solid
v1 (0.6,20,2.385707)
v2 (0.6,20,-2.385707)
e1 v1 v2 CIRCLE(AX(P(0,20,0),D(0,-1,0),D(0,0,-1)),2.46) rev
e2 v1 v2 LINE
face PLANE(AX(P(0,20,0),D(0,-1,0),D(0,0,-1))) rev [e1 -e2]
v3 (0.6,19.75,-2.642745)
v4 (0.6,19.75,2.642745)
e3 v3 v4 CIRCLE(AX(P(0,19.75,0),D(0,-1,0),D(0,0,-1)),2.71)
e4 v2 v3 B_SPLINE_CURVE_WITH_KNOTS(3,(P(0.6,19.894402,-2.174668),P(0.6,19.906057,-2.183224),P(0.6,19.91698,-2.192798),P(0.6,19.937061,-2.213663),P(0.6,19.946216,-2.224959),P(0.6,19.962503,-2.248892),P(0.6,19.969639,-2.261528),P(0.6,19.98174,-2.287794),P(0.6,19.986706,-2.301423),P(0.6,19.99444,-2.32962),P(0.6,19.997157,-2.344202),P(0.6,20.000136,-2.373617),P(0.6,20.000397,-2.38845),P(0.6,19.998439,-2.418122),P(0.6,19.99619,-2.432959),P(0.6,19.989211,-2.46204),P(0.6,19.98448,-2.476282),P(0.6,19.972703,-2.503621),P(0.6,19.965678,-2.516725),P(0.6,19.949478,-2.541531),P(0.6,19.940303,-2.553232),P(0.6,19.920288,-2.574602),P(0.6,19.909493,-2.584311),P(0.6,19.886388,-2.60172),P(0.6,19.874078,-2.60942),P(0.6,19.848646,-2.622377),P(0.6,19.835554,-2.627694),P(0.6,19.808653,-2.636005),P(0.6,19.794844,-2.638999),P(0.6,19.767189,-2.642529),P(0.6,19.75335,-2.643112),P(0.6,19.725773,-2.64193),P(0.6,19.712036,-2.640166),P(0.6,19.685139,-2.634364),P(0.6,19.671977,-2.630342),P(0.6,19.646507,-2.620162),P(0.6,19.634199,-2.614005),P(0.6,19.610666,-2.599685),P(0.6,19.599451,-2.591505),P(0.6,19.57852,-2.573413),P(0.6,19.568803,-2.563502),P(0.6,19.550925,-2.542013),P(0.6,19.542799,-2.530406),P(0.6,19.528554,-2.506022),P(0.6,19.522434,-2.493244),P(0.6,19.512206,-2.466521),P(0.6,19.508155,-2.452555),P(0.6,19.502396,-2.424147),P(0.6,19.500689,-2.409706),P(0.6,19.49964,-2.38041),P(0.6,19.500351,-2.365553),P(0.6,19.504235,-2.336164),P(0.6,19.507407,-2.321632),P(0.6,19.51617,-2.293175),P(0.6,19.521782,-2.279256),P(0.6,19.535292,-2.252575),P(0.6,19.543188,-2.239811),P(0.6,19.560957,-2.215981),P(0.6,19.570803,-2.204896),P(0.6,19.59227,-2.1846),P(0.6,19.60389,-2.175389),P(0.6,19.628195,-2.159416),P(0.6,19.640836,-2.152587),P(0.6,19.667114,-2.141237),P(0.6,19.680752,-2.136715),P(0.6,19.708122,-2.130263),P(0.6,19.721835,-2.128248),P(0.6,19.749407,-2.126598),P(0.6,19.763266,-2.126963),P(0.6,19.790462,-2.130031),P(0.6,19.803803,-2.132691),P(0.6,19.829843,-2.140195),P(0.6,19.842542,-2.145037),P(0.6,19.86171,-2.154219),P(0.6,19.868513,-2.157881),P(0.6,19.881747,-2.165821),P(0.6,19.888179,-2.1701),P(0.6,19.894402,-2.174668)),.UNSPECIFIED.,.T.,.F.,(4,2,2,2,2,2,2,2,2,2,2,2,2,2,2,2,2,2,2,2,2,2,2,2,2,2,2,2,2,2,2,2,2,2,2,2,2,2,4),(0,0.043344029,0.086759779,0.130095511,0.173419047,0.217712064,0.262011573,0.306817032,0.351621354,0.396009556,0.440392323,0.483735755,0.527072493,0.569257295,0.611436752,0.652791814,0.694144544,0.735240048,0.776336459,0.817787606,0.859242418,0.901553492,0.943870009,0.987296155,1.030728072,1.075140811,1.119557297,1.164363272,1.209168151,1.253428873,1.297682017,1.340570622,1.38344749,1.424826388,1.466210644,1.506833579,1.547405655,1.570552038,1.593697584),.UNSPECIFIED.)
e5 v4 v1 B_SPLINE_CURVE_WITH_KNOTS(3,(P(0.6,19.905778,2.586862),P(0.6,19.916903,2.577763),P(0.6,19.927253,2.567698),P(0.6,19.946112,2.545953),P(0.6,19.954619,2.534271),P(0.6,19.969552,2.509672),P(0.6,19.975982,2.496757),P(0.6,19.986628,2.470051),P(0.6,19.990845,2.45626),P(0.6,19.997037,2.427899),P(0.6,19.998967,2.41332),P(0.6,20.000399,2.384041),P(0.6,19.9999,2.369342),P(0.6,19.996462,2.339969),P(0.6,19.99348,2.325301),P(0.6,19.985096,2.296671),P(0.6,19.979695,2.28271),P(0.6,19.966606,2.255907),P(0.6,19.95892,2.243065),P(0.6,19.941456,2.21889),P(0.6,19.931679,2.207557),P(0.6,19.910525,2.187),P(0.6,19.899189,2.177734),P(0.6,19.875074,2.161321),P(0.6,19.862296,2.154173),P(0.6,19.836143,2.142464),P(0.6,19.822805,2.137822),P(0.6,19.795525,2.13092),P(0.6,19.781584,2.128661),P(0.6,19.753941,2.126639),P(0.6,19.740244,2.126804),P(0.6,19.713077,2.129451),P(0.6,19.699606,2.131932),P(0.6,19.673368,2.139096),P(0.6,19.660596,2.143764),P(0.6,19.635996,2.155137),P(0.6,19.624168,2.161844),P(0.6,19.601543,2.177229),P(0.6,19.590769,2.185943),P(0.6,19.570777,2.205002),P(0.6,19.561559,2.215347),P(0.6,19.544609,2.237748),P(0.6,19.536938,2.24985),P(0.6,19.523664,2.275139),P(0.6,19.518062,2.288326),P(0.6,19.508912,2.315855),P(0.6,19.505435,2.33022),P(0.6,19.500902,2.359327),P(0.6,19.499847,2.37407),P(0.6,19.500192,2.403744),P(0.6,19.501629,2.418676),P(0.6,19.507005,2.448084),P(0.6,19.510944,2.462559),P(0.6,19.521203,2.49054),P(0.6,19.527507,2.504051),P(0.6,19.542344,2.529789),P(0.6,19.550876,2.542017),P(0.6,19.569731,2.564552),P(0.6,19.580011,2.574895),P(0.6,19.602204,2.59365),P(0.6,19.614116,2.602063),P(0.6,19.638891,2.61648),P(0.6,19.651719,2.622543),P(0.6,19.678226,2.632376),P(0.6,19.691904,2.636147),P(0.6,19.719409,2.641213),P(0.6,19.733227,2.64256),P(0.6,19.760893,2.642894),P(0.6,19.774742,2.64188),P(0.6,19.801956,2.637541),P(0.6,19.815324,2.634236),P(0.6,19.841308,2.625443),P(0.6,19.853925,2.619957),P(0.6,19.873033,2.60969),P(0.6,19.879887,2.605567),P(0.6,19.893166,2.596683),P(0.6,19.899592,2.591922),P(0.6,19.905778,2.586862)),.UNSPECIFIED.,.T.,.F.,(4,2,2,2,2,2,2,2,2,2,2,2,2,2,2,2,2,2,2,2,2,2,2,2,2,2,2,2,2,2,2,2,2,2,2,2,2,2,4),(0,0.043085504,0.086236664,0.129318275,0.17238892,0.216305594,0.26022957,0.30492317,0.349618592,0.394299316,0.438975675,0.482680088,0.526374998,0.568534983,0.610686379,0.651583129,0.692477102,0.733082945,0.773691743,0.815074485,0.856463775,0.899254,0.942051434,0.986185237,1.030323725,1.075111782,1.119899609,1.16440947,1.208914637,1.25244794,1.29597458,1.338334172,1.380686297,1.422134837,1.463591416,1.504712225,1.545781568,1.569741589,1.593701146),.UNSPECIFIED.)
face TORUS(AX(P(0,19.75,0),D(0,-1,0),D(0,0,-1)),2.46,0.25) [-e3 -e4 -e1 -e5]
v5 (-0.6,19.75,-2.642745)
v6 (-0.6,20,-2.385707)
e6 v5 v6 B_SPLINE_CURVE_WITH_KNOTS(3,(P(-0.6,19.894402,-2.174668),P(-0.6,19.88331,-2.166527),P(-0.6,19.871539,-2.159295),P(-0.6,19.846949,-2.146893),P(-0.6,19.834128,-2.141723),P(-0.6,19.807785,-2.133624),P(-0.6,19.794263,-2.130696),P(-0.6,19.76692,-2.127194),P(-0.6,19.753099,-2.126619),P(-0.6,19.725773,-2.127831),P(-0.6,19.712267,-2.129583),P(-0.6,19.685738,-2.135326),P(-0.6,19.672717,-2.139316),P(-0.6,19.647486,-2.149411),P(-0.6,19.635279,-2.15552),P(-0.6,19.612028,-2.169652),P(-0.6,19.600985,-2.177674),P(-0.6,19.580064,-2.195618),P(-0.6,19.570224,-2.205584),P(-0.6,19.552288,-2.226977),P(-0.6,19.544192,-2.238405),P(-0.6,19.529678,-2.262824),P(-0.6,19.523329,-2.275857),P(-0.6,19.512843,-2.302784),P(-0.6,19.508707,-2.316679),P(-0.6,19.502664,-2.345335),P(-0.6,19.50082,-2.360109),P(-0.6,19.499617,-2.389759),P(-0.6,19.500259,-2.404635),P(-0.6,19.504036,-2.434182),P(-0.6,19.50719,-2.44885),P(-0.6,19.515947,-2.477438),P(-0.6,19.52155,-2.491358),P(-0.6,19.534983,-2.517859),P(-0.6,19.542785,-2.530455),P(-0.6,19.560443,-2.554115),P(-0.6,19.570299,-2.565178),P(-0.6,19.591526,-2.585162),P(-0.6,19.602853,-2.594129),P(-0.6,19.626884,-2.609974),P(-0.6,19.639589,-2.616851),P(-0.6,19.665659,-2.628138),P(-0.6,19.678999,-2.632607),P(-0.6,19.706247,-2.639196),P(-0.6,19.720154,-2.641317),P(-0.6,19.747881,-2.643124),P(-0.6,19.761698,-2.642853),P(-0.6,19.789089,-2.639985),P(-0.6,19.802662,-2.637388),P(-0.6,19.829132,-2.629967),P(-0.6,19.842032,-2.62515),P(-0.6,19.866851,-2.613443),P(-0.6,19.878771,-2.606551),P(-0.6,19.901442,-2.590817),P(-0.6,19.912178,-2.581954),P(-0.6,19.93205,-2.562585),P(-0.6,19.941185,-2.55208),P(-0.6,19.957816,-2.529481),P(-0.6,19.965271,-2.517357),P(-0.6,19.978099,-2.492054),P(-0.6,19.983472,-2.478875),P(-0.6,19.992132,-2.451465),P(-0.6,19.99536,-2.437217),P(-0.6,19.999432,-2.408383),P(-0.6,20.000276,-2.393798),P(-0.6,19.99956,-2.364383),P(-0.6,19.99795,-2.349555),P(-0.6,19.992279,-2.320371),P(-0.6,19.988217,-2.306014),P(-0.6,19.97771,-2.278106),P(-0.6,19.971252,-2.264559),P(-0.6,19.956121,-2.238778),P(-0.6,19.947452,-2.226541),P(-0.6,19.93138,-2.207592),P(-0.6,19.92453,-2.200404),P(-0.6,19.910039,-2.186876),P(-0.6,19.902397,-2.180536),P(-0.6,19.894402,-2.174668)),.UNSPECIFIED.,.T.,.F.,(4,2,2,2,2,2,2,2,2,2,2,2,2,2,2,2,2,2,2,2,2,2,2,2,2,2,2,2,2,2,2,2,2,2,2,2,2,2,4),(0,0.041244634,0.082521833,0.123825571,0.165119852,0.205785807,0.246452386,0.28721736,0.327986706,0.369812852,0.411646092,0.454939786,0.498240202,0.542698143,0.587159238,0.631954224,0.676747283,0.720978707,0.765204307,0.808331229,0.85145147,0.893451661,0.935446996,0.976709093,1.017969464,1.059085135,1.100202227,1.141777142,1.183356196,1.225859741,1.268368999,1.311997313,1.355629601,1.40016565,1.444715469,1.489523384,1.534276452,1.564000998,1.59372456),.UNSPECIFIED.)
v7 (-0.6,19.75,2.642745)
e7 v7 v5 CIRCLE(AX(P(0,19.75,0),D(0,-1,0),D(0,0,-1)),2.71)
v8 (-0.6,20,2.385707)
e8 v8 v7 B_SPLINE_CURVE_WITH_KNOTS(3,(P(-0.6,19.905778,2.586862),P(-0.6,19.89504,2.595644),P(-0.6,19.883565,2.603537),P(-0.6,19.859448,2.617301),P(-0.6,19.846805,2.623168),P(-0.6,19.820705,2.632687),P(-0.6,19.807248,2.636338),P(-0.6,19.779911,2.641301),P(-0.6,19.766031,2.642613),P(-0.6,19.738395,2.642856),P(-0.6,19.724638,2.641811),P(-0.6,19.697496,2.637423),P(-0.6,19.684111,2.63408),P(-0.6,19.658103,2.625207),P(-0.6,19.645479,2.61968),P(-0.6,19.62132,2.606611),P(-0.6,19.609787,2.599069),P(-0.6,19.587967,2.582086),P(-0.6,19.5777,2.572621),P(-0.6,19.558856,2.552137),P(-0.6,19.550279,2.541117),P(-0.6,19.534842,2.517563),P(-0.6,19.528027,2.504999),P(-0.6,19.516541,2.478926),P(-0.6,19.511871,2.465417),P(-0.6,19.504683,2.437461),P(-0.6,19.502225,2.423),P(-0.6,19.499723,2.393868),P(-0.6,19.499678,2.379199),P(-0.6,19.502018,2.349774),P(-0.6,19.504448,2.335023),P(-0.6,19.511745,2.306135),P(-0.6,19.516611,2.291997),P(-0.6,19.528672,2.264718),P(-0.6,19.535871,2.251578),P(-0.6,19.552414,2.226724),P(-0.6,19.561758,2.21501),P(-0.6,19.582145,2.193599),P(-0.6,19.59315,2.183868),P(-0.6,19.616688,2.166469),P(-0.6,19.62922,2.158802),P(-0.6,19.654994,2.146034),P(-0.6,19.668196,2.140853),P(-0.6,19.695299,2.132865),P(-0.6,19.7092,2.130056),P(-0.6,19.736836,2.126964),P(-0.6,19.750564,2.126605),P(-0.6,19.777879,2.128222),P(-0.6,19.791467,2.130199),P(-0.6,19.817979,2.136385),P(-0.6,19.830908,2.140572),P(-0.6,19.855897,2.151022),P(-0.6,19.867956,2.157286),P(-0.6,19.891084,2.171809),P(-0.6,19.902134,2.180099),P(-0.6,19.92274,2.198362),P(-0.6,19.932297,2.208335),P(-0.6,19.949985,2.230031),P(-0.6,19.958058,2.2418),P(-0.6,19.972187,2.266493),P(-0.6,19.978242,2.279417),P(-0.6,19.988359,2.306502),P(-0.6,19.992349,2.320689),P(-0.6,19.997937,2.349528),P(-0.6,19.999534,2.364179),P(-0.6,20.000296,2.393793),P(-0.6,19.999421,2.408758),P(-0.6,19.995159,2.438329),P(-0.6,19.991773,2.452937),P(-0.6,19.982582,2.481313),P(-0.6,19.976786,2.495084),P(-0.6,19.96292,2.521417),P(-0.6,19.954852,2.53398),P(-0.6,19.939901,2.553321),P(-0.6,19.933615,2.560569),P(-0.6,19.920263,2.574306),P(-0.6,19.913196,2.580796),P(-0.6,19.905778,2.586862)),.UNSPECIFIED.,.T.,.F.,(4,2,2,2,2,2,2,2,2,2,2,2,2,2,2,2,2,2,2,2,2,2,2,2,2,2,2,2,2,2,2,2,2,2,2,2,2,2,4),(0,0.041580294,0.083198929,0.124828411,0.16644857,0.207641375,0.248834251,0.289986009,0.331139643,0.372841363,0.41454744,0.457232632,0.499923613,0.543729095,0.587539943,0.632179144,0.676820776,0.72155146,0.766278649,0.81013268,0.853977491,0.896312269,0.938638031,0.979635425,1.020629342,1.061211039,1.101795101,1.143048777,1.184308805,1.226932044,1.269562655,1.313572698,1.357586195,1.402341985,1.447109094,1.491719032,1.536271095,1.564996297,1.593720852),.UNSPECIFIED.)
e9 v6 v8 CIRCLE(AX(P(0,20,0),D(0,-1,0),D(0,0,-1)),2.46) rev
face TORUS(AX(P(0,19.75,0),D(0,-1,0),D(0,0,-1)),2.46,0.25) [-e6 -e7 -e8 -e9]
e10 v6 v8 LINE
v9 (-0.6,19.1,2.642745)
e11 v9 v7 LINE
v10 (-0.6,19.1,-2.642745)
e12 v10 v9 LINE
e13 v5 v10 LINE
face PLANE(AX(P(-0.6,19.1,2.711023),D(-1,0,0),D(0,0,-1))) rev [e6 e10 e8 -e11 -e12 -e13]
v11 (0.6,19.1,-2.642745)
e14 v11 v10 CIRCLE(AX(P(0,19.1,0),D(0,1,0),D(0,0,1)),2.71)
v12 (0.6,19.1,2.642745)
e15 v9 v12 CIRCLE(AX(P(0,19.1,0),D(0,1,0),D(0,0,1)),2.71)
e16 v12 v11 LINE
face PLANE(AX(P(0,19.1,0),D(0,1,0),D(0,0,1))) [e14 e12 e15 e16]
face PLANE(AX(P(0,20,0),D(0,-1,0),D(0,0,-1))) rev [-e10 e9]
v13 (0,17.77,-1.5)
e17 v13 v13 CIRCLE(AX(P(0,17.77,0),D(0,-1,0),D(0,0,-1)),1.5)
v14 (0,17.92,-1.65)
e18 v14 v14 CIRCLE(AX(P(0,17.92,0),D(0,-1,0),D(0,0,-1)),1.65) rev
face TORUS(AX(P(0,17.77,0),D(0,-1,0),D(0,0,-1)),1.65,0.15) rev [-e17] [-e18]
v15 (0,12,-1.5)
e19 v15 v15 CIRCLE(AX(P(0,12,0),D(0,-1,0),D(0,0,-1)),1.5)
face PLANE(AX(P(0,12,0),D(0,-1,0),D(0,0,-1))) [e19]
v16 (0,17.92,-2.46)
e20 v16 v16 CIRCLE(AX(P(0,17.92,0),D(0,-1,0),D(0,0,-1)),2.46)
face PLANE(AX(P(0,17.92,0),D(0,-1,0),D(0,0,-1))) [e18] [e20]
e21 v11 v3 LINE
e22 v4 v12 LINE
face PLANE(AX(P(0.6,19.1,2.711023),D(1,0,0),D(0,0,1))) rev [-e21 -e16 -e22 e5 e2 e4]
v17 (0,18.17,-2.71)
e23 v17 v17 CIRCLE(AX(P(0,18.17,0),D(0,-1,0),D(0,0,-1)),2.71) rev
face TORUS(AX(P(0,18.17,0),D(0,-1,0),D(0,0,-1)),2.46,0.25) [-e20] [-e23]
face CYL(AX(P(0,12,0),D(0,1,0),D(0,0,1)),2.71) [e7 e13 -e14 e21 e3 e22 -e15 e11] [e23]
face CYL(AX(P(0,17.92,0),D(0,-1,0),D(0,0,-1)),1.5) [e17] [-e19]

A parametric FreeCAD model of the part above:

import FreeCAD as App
import Part
import Sketcher
from FreeCAD import Vector
Q = App.Units.Quantity


def edges_at(feature, points):
    """Names of the edges that pass closest to the given points."""
    edges = feature.Shape.Edges
    near = lambda p: min(range(len(edges)), key=lambda i: edges[i].distToShape(Part.Vertex(*p))[0])
    return sorted({f"Edge{near(p) + 1}" for p in points})

doc = App.newDocument("Part")
body = doc.addObject("PartDesign::Body", "Body")

# Sketch on XZ plane
sketch1 = body.newObject("Sketcher::SketchObject", "Sketch")
sketch1.AttachmentSupport = (doc.getObject("XZ_Plane"), [""])
sketch1.MapMode = "FlatFace"
sketch1.addGeometry(Part.Circle(Vector(0, 0, 0), Vector(0, 0, 1), 2.7), False)
sketch1.addConstraint(Sketcher.Constraint("Coincident", 0, 3, -1, 1))
sketch1.addConstraint(Sketcher.Constraint("Diameter", 0, Q("5.42 mm")))
pad1 = body.newObject("PartDesign::Pad", "Pad")
pad1.Profile = sketch1
pad1.Length = 8
pad1.Reversed = True

# Sketch on XZ plane
sketch2 = body.newObject("Sketcher::SketchObject", "Sketch001")
sketch2.AttachmentSupport = (doc.getObject("XZ_Plane"), [""])
sketch2.MapMode = "FlatFace"
sketch2.AttachmentOffset = App.Placement(Vector(0, 0, -8), App.Rotation())
sketch2.addGeometry(Part.LineSegment(Vector(-4.8, -4.8, 0), Vector(-4.8, 4.8, 0)), False)
sketch2.addGeometry(Part.LineSegment(Vector(-4.8, 4.8, 0), Vector(4.8, 4.8, 0)), False)
sketch2.addGeometry(Part.LineSegment(Vector(4.8, 4.8, 0), Vector(4.8, -4.8, 0)), False)
sketch2.addGeometry(Part.LineSegment(Vector(4.8, -4.8, 0), Vector(-4.8, -4.8, 0)), False)
sketch2.addGeometry(Part.Circle(Vector(0, 0, 0), Vector(0, 0, 1), 1.5), False)
sketch2.addConstraint(Sketcher.Constraint("Coincident", 0, 2, 1, 1))
sketch2.addConstraint(Sketcher.Constraint("Coincident", 1, 2, 2, 1))
sketch2.addConstraint(Sketcher.Constraint("Coincident", 2, 2, 3, 1))
sketch2.addConstraint(Sketcher.Constraint("Coincident", 3, 2, 0, 1))
sketch2.addConstraint(Sketcher.Constraint("Vertical", 0))
sketch2.addConstraint(Sketcher.Constraint("Horizontal", 1))
sketch2.addConstraint(Sketcher.Constraint("Vertical", 2))
sketch2.addConstraint(Sketcher.Constraint("Horizontal", 3))
sketch2.addConstraint(Sketcher.Constraint("Coincident", 4, 3, -1, 1))
sketch2.addConstraint(Sketcher.Constraint("Symmetric", 0, 2, 2, 2, -1, 1))
sketch2.addConstraint(Sketcher.Constraint("Equal", 3, 0))
sketch2.addConstraint(Sketcher.Constraint("Diameter", 4, Q("3 mm")))
sketch2.addConstraint(Sketcher.Constraint("DistanceX", 1, 1, 1, 2, Q("9.636 mm")))
pocket1 = body.newObject("PartDesign::Pocket", "Pocket")
pocket1.Profile = sketch2
pocket1.Length = 5.92
pocket1.Reversed = True
doc.recompute()

fillet = body.newObject("PartDesign::Fillet", "Fillet")
fillet.Base = (pocket1, edges_at(pocket1, [(0, 0, -2.71), (0, 2.08, -2.71)]))
fillet.Radius = 0.25
doc.recompute()

fillet2 = body.newObject("PartDesign::Fillet", "Fillet001")
fillet2.Base = (fillet, edges_at(fillet, [(0, 2.08, -1.5)]))
fillet2.Radius = 0.15

# Sketch on XZ plane
sketch3 = body.newObject("Sketcher::SketchObject", "Sketch002")
sketch3.AttachmentSupport = (doc.getObject("XZ_Plane"), [""])
sketch3.MapMode = "FlatFace"
sketch3.addGeometry(Part.LineSegment(Vector(-0.6, 2.7, 0), Vector(-0.6, -2.7, 0)), False)
sketch3.addGeometry(Part.LineSegment(Vector(-0.6, -2.7, 0), Vector(0.6, -2.7, 0)), False)
sketch3.addGeometry(Part.LineSegment(Vector(0.6, -2.7, 0), Vector(0.6, 2.7, 0)), False)
sketch3.addGeometry(Part.LineSegment(Vector(0.6, 2.7, 0), Vector(-0.6, 2.7, 0)), False)
sketch3.addConstraint(Sketcher.Constraint("Coincident", 0, 2, 1, 1))
sketch3.addConstraint(Sketcher.Constraint("Coincident", 1, 2, 2, 1))
sketch3.addConstraint(Sketcher.Constraint("Coincident", 2, 2, 3, 1))
sketch3.addConstraint(Sketcher.Constraint("Coincident", 3, 2, 0, 1))
sketch3.addConstraint(Sketcher.Constraint("Vertical", 0))
sketch3.addConstraint(Sketcher.Constraint("Horizontal", 1))
sketch3.addConstraint(Sketcher.Constraint("Vertical", 2))
sketch3.addConstraint(Sketcher.Constraint("Horizontal", 3))
sketch3.addConstraint(Sketcher.Constraint("Symmetric", 0, 2, 2, 2, -1, 1))
sketch3.addConstraint(Sketcher.Constraint("DistanceX", 1, 1, 1, 2, Q("1.2 mm")))
sketch3.addConstraint(Sketcher.Constraint("DistanceY", 0, 2, 0, 1, Q("5.422047 mm")))
pocket2 = body.newObject("PartDesign::Pocket", "Pocket001")
pocket2.Profile = sketch3
pocket2.Length = 0.9
body2 = doc.addObject("PartDesign::Body", "Body001")
doc.recompute()

body.Placement = App.Placement(Vector(0, 20, 0), App.Rotation(Vector(1, 0, 0), 180))
boolean = body2.newObject("PartDesign::Boolean", "Boolean")
boolean.Type = "Fuse"
boolean.addObjects([body])

doc.recompute()
